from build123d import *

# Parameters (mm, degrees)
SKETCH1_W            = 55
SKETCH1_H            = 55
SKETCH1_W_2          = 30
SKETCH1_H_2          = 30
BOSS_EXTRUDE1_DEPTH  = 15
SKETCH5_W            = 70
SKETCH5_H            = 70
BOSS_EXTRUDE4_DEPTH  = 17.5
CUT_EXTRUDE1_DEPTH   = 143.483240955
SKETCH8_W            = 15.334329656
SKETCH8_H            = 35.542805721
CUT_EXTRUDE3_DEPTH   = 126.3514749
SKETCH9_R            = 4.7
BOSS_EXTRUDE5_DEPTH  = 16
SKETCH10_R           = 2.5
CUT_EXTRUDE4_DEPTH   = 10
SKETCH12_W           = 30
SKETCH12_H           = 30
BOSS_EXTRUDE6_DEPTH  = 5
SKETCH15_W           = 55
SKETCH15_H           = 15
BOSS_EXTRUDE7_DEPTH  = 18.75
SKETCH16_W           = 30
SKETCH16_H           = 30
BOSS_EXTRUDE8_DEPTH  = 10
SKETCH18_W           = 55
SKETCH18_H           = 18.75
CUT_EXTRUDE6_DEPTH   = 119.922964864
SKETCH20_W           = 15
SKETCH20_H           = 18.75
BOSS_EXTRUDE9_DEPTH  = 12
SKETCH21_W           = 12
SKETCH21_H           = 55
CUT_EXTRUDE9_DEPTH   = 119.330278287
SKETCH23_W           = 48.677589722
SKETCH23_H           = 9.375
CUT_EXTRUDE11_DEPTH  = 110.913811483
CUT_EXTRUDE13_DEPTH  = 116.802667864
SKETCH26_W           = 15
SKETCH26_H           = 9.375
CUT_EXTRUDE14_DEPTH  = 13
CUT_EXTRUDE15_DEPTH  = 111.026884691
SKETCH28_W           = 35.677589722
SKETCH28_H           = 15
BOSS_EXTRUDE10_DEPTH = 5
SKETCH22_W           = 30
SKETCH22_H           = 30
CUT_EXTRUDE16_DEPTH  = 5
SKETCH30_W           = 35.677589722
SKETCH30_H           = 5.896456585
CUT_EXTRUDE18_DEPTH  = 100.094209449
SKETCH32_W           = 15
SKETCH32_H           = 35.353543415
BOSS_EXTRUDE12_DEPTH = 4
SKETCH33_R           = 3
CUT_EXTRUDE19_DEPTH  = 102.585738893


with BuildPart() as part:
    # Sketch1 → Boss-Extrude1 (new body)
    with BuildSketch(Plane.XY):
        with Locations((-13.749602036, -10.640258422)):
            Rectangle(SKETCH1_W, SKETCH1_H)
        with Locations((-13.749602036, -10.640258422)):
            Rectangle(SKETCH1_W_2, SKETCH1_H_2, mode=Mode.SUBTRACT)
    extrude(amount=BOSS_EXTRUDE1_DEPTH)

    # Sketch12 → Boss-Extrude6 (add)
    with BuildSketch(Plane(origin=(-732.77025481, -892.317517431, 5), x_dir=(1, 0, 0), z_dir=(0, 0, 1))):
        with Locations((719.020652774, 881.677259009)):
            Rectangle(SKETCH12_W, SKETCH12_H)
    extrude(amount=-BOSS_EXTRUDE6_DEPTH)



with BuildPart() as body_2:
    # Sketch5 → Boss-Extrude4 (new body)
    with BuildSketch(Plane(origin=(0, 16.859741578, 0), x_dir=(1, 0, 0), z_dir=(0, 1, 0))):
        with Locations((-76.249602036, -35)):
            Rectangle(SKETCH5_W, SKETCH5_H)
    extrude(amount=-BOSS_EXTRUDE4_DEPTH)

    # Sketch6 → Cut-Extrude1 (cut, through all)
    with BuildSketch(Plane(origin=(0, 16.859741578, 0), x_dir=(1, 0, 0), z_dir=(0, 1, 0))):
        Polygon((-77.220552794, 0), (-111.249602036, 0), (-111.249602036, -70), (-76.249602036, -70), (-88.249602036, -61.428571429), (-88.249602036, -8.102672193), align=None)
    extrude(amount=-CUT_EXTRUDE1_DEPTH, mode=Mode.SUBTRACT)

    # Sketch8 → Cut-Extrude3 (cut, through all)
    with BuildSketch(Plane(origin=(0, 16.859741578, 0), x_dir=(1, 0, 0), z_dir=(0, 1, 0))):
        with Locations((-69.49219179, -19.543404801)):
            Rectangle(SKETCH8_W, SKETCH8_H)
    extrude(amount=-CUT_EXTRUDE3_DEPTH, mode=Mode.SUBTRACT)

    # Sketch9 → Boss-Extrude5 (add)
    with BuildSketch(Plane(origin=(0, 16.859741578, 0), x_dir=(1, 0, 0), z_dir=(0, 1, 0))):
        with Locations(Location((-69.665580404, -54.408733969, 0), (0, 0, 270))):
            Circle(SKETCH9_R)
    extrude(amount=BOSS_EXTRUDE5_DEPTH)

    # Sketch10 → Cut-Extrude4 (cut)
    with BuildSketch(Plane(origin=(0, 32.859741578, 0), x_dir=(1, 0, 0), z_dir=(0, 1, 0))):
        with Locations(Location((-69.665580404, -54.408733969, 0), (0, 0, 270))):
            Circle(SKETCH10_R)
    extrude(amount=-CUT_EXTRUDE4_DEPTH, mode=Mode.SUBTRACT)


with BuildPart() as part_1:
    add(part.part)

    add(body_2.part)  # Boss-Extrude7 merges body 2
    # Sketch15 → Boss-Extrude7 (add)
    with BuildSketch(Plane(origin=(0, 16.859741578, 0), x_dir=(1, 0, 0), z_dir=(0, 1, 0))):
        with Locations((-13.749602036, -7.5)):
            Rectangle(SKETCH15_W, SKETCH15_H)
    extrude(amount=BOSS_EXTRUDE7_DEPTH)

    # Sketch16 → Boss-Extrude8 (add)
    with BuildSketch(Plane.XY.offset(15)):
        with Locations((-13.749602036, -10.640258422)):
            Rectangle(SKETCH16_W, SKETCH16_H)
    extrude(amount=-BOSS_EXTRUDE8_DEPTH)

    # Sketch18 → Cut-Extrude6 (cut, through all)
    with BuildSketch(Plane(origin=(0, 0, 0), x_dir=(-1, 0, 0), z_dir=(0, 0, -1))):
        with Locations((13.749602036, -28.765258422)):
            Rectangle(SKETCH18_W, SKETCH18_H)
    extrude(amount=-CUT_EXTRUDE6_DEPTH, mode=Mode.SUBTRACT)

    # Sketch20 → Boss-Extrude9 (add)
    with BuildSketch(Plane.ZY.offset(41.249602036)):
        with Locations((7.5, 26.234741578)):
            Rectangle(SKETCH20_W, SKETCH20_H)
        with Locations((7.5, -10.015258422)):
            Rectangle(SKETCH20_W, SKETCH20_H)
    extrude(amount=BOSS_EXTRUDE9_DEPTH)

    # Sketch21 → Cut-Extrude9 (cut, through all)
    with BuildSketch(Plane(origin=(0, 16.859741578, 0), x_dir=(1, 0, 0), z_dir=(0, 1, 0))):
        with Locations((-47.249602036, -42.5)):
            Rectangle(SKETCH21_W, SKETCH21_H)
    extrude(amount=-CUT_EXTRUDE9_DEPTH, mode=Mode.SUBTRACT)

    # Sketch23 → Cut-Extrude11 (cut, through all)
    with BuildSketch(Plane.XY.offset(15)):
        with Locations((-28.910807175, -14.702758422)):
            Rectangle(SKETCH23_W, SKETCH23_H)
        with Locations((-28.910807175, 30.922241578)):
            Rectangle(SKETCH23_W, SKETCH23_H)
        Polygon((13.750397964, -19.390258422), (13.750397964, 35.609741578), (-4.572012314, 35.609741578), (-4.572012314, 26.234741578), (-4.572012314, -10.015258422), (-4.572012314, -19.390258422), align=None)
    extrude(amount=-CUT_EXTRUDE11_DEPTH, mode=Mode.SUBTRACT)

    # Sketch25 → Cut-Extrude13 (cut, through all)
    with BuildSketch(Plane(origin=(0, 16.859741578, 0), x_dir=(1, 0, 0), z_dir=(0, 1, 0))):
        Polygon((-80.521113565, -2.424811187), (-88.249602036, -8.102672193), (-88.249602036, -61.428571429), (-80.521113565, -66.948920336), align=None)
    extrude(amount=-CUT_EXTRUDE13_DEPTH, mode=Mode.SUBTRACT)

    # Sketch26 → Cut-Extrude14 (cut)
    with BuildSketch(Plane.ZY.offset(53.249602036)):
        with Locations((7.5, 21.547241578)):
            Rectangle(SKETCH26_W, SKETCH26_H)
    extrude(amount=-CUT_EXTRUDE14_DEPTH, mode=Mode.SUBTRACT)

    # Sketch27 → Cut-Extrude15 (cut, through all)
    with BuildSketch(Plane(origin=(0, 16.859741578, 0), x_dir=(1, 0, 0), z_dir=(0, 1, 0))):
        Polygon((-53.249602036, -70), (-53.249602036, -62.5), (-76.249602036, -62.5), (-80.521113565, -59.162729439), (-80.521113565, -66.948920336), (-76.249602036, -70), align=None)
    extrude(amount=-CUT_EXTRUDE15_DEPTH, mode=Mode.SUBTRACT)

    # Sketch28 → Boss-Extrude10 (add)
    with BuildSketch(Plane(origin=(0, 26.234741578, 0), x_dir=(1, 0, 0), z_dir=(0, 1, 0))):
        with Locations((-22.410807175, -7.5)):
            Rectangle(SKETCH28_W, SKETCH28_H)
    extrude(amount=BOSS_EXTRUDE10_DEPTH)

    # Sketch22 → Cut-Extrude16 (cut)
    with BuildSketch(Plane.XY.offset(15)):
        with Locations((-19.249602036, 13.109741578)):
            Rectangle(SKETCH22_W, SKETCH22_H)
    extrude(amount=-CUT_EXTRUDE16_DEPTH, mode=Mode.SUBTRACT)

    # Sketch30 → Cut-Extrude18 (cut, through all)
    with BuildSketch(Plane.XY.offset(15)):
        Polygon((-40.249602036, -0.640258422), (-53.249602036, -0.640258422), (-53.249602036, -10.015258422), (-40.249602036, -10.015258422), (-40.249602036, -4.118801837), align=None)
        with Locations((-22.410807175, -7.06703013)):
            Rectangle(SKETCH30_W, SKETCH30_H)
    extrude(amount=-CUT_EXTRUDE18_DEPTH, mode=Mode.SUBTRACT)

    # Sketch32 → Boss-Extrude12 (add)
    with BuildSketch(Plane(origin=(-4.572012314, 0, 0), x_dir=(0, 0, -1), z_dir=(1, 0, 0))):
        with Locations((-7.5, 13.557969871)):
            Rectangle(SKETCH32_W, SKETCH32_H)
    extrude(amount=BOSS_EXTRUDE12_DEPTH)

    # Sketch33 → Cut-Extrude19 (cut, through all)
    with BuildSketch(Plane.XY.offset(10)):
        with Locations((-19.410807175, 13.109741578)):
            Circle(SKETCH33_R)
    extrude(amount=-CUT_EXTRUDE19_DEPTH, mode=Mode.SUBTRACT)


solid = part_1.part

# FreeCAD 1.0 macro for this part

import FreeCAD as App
import Part
import Sketcher
Q = App.Units.Quantity


def add_polygon(sketch, points):
    """Adds a closed chain of lines whose ends are joined by coincident constraints."""
    first, n = sketch.GeometryCount, len(points)
    for a, b in zip(points, points[1:] + points[:1]):
        sketch.addGeometry(Part.LineSegment(App.Vector(*a, 0), App.Vector(*b, 0)), False)
    for i in range(n):
        sketch.addConstraint(Sketcher.Constraint("Coincident", first + i, 2, first + (i + 1) % n, 1))

doc = App.newDocument("Part")
body = doc.addObject("PartDesign::Body", "Body")

# Sketch on XY plane
sketch1 = body.newObject("Sketcher::SketchObject", "Sketch")
sketch1.AttachmentSupport = (doc.getObject("XY_Plane"), [""])
sketch1.MapMode = "FlatFace"
add_polygon(sketch1, [(-41, 17), (-41, -38), (14, -38), (14, 17)])  # lines 0-3
add_polygon(sketch1, [(1, -26), (-29, -26), (-29, 4), (1, 4)])  # lines 4-7
sketch1.addConstraint([
    Sketcher.Constraint("Vertical", 0),
    Sketcher.Constraint("Horizontal", 1),
    Sketcher.Constraint("Vertical", 2),
    Sketcher.Constraint("Horizontal", 3),
    Sketcher.Constraint("Horizontal", 4),
    Sketcher.Constraint("Vertical", 5),
    Sketcher.Constraint("Horizontal", 6),
    Sketcher.Constraint("Vertical", 7),
    Sketcher.Constraint("Equal", 3, 0),
    Sketcher.Constraint("Equal", 6, 5),
    Sketcher.Constraint("DistanceX", 1, 1, 1, 2, 55.0),
    Sketcher.Constraint("DistanceX", 4, 2, 4, 1, 30.0),
    Sketcher.Constraint("DistanceX", 0, 2, 4, 2, 12.5),
    Sketcher.Constraint("DistanceY", 0, 2, 4, 2, 12.5),
    Sketcher.Constraint("DistanceY", 0, 2, -1, 1, 38.140258),
    Sketcher.Constraint("DistanceX", 0, 2, -1, 1, 41.249602),
])
pad1 = body.newObject("PartDesign::Pad", "Pad")
pad1.Profile = sketch1
pad1.Length = 15

# Sketch on XY plane
sketch2 = body.newObject("Sketcher::SketchObject", "Sketch001")
sketch2.AttachmentSupport = (doc.getObject("XY_Plane"), [""])
sketch2.MapMode = "FlatFace"
sketch2.AttachmentOffset = App.Placement(App.Vector(0, 0, 5), App.Rotation())
add_polygon(sketch2, [(-29, 4), (-29, -26), (1, -26), (1, 4)])  # lines 0-3
sketch2.addConstraint([
    Sketcher.Constraint("Vertical", 0),
    Sketcher.Constraint("Horizontal", 1),
    Sketcher.Constraint("Vertical", 2),
    Sketcher.Constraint("Horizontal", 3),
    Sketcher.Constraint("Equal", 3, 0),
    Sketcher.Constraint("DistanceX", 1, 1, 1, 2, 30.0),
    Sketcher.Constraint("DistanceY", 0, 2, -1, 1, 25.640258),
    Sketcher.Constraint("DistanceX", 0, 2, -1, 1, 28.749602),
])
pad2 = body.newObject("PartDesign::Pad", "Pad001")
pad2.Profile = sketch2
pad2.Length = 5
pad2.Reversed = True
body2 = doc.addObject("PartDesign::Body", "Body001")

# Sketch on XZ plane
sketch3 = body2.newObject("Sketcher::SketchObject", "Sketch002")
sketch3.AttachmentSupport = (doc.getObject("XZ_Plane001"), [""])
sketch3.MapMode = "FlatFace"
sketch3.AttachmentOffset = App.Placement(App.Vector(0, 0, -16.859742), App.Rotation())
add_polygon(sketch3, [(-111, 0), (-111, 70), (-41, 70), (-41, 0)])  # lines 0-3
sketch3.addConstraint([
    Sketcher.Constraint("Vertical", 0),
    Sketcher.Constraint("Horizontal", 1),
    Sketcher.Constraint("Vertical", 2),
    Sketcher.Constraint("Horizontal", 3),
    Sketcher.Constraint("PointOnObject", 2, 2, -1),
    Sketcher.Constraint("Equal", 3, 0),
    Sketcher.Constraint("DistanceX", 1, 1, 1, 2, 70.0),
    Sketcher.Constraint("DistanceX", 0, 2, -1, 1, 111.249602),
])
pad3 = body2.newObject("PartDesign::Pad", "Pad002")
pad3.Profile = sketch3
pad3.Length = 17.5

# Sketch on XZ plane
sketch4 = body2.newObject("Sketcher::SketchObject", "Sketch003")
sketch4.AttachmentSupport = (doc.getObject("XZ_Plane001"), [""])
sketch4.MapMode = "FlatFace"
sketch4.AttachmentOffset = App.Placement(App.Vector(0, 0, -16.859742), App.Rotation())
add_polygon(sketch4, [(-77, 0), (-111, 0), (-111, 70), (-76, 70), (-88, 61), (-88, 8)])  # lines 0-5
sketch4.addConstraint([
    Sketcher.Constraint("Horizontal", 0),
    Sketcher.Constraint("Vertical", 1),
    Sketcher.Constraint("Horizontal", 2),
    Sketcher.Constraint("Vertical", 4),
    Sketcher.Constraint("PointOnObject", 0, 2, -1),
    Sketcher.Constraint("DistanceX", 2, 1, 2, 2, 35.0),
    Sketcher.Constraint("DistanceY", 1, 1, 1, 2, 70.0),
    Sketcher.Constraint("DistanceX", 3, 2, 2, 2, 12.0),
    Sketcher.Constraint("DistanceY", 4, 2, 4, 1, 53.325899),
    Sketcher.Constraint("DistanceX", 0, 2, 0, 1, 34.029049),
    Sketcher.Constraint("Distance", 5, 13.685511),
    Sketcher.Constraint("DistanceX", 0, 2, -1, 1, 111.249602),
])
pocket1 = body2.newObject("PartDesign::Pocket", "Pocket")
pocket1.Profile = sketch4
pocket1.Type = "ThroughAll"
pocket1.Reversed = True

# Sketch on XZ plane
sketch5 = body2.newObject("Sketcher::SketchObject", "Sketch004")
sketch5.AttachmentSupport = (doc.getObject("XZ_Plane001"), [""])
sketch5.MapMode = "FlatFace"
sketch5.AttachmentOffset = App.Placement(App.Vector(0, 0, -16.859742), App.Rotation())
add_polygon(sketch5, [(-77, 2), (-77, 37), (-62, 37), (-62, 2)])  # lines 0-3
sketch5.addConstraint([
    Sketcher.Constraint("Vertical", 0),
    Sketcher.Constraint("Horizontal", 1),
    Sketcher.Constraint("Vertical", 2),
    Sketcher.Constraint("Horizontal", 3),
    Sketcher.Constraint("DistanceY", -1, 1, 2, 2, 1.772002),
    Sketcher.Constraint("DistanceX", 1, 1, 1, 2, 15.33433),
    Sketcher.Constraint("DistanceY", 0, 1, 0, 2, 35.542806),
    Sketcher.Constraint("DistanceX", 0, 2, -1, 1, 77.159357),
])
pocket2 = body2.newObject("PartDesign::Pocket", "Pocket001")
pocket2.Profile = sketch5
pocket2.Type = "ThroughAll"
pocket2.Reversed = True

# Sketch on XZ plane
sketch6 = body2.newObject("Sketcher::SketchObject", "Sketch005")
sketch6.AttachmentSupport = (doc.getObject("XZ_Plane001"), [""])
sketch6.MapMode = "FlatFace"
sketch6.AttachmentOffset = App.Placement(App.Vector(0, 0, -16.859742), App.Rotation())
sketch6.addGeometry(Part.Circle(App.Vector(-69.7, 54.4, 0), App.Vector(0, 0, 1), 4.7), False)
sketch6.addConstraint([
    Sketcher.Constraint("Diameter", 0, 9.4),
    Sketcher.Constraint("DistanceX", 0, 3, -1, 1, 69.66558),
    Sketcher.Constraint("DistanceY", -1, 1, 0, 3, 54.408734),
])
pad4 = body2.newObject("PartDesign::Pad", "Pad003")
pad4.Profile = sketch6
pad4.Length = 16
pad4.Reversed = True

# Sketch on XZ plane
sketch7 = body2.newObject("Sketcher::SketchObject", "Sketch006")
sketch7.AttachmentSupport = (doc.getObject("XZ_Plane001"), [""])
sketch7.MapMode = "FlatFace"
sketch7.AttachmentOffset = App.Placement(App.Vector(0, 0, -32.859742), App.Rotation())
sketch7.addGeometry(Part.Circle(App.Vector(-69.7, 54.4, 0), App.Vector(0, 0, 1), 2.5), False)
sketch7.addConstraint([
    Sketcher.Constraint("Diameter", 0, 5.0),
    Sketcher.Constraint("DistanceX", 0, 3, -1, 1, 69.66558),
    Sketcher.Constraint("DistanceY", -1, 1, 0, 3, 54.408734),
])
pocket3 = body2.newObject("PartDesign::Pocket", "Pocket002")
pocket3.Profile = sketch7
pocket3.Length = 10
pocket3.Reversed = True
doc.recompute()

boolean = body.newObject("PartDesign::Boolean", "Boolean")
boolean.Type = "Fuse"
boolean.addObjects([body2])

# Sketch on XZ plane
sketch8 = body.newObject("Sketcher::SketchObject", "Sketch007")
sketch8.AttachmentSupport = (doc.getObject("XZ_Plane"), [""])
sketch8.MapMode = "FlatFace"
sketch8.AttachmentOffset = App.Placement(App.Vector(0, 0, -16.859742), App.Rotation())
add_polygon(sketch8, [(-41, 0), (-41, 15), (14, 15), (14, 0)])  # lines 0-3
sketch8.addConstraint([
    Sketcher.Constraint("Vertical", 0),
    Sketcher.Constraint("Horizontal", 1),
    Sketcher.Constraint("Vertical", 2),
    Sketcher.Constraint("Horizontal", 3),
    Sketcher.Constraint("PointOnObject", 2, 2, -1),
    Sketcher.Constraint("DistanceX", 1, 1, 1, 2, 55.0),
    Sketcher.Constraint("DistanceY", 0, 1, 0, 2, 15.0),
    Sketcher.Constraint("DistanceX", 0, 2, -1, 1, 41.249602),
])
pad5 = body.newObject("PartDesign::Pad", "Pad004")
pad5.Profile = sketch8
pad5.Length = 18.75
pad5.Reversed = True

# Sketch on XY plane
sketch9 = body.newObject("Sketcher::SketchObject", "Sketch008")
sketch9.AttachmentSupport = (doc.getObject("XY_Plane"), [""])
sketch9.MapMode = "FlatFace"
sketch9.AttachmentOffset = App.Placement(App.Vector(0, 0, 15), App.Rotation())
add_polygon(sketch9, [(-29, 4), (-29, -26), (1, -26), (1, 4)])  # lines 0-3
sketch9.addConstraint([
    Sketcher.Constraint("Vertical", 0),
    Sketcher.Constraint("Horizontal", 1),
    Sketcher.Constraint("Vertical", 2),
    Sketcher.Constraint("Horizontal", 3),
    Sketcher.Constraint("Equal", 3, 0),
    Sketcher.Constraint("DistanceX", 1, 1, 1, 2, 30.0),
    Sketcher.Constraint("DistanceY", 0, 2, -1, 1, 25.640258),
    Sketcher.Constraint("DistanceX", 0, 2, -1, 1, 28.749602),
])
pad6 = body.newObject("PartDesign::Pad", "Pad005")
pad6.Profile = sketch9
pad6.Length = 10
pad6.Reversed = True

# Sketch on XY plane
sketch10 = body.newObject("Sketcher::SketchObject", "Sketch009")
sketch10.AttachmentSupport = (doc.getObject("XY_Plane"), [""])
sketch10.MapMode = "FlatFace"
add_polygon(sketch10, [(14, -19), (14, -38), (-41, -38), (-41, -19)])  # lines 0-3
sketch10.addConstraint([
    Sketcher.Constraint("Vertical", 0),
    Sketcher.Constraint("Horizontal", 1),
    Sketcher.Constraint("Vertical", 2),
    Sketcher.Constraint("Horizontal", 3),
    Sketcher.Constraint("DistanceX", 1, 2, 1, 1, 55.0),
    Sketcher.Constraint("DistanceY", 0, 2, 0, 1, 18.75),
    Sketcher.Constraint("DistanceY", 0, 2, -1, 1, 38.140258),
    Sketcher.Constraint("DistanceX", -1, 1, 0, 2, 13.750398),
])
pocket4 = body.newObject("PartDesign::Pocket", "Pocket003")
pocket4.Profile = sketch10
pocket4.Type = "ThroughAll"
pocket4.Reversed = True

# Sketch on YZ plane
sketch11 = body.newObject("Sketcher::SketchObject", "Sketch010")
sketch11.AttachmentSupport = (doc.getObject("YZ_Plane"), [""])
sketch11.MapMode = "FlatFace"
sketch11.AttachmentOffset = App.Placement(App.Vector(0, 0, -41.249602), App.Rotation())
add_polygon(sketch11, [(36, 0), (17, 0), (17, 15), (36, 15)])  # lines 0-3
add_polygon(sketch11, [(-1, 0), (-19, 0), (-19, 15), (-1, 15)])  # lines 4-7
sketch11.addConstraint([
    Sketcher.Constraint("Horizontal", 0),
    Sketcher.Constraint("Vertical", 1),
    Sketcher.Constraint("Horizontal", 2),
    Sketcher.Constraint("Vertical", 3),
    Sketcher.Constraint("Horizontal", 4),
    Sketcher.Constraint("Vertical", 5),
    Sketcher.Constraint("Horizontal", 6),
    Sketcher.Constraint("Vertical", 7),
    Sketcher.Constraint("PointOnObject", 0, 2, -1),
    Sketcher.Constraint("PointOnObject", 4, 2, -1),
    Sketcher.Constraint("Horizontal", 2, 2, 5, 2),
    Sketcher.Constraint("Equal", 2, 4),
    Sketcher.Constraint("DistanceY", 1, 1, 1, 2, 15.0),
    Sketcher.Constraint("DistanceX", 4, 2, 3, 2, 55.0),
    Sketcher.Constraint("DistanceX", 0, 2, 0, 1, 18.75),
    Sketcher.Constraint("DistanceX", -1, 1, 0, 2, 16.859742),
])
pad7 = body.newObject("PartDesign::Pad", "Pad006")
pad7.Profile = sketch11
pad7.Length = 12
pad7.Reversed = True

# Sketch on XZ plane
sketch12 = body.newObject("Sketcher::SketchObject", "Sketch011")
sketch12.AttachmentSupport = (doc.getObject("XZ_Plane"), [""])
sketch12.MapMode = "FlatFace"
sketch12.AttachmentOffset = App.Placement(App.Vector(0, 0, -16.859742), App.Rotation())
add_polygon(sketch12, [(-53, 15), (-53, 70), (-41, 70), (-41, 15)])  # lines 0-3
sketch12.addConstraint([
    Sketcher.Constraint("Vertical", 0),
    Sketcher.Constraint("Horizontal", 1),
    Sketcher.Constraint("Vertical", 2),
    Sketcher.Constraint("Horizontal", 3),
    Sketcher.Constraint("DistanceX", 1, 1, 1, 2, 12.0),
    Sketcher.Constraint("DistanceY", 0, 1, 0, 2, 55.0),
    Sketcher.Constraint("DistanceY", -1, 1, 0, 2, 70.0),
    Sketcher.Constraint("DistanceX", 0, 2, -1, 1, 53.249602),
])
pocket5 = body.newObject("PartDesign::Pocket", "Pocket004")
pocket5.Profile = sketch12
pocket5.Type = "ThroughAll"
pocket5.Reversed = True

# Sketch on XY plane
sketch13 = body.newObject("Sketcher::SketchObject", "Sketch012")
sketch13.AttachmentSupport = (doc.getObject("XY_Plane"), [""])
sketch13.MapMode = "FlatFace"
sketch13.AttachmentOffset = App.Placement(App.Vector(0, 0, 15), App.Rotation())
add_polygon(sketch13, [(-53, -10), (-53, -19), (14, -19), (14, 36), (-53, 36), (-53, 26), (-5, 26), (-5, -10)])  # lines 0-7
sketch13.addConstraint([
    Sketcher.Constraint("Vertical", 0),
    Sketcher.Constraint("Horizontal", 1),
    Sketcher.Constraint("Vertical", 2),
    Sketcher.Constraint("Horizontal", 3),
    Sketcher.Constraint("Vertical", 4),
    Sketcher.Constraint("Horizontal", 5),
    Sketcher.Constraint("Vertical", 6),
    Sketcher.Constraint("Horizontal", 7),
    Sketcher.Constraint("Vertical", 0, 2, 3, 2),
    Sketcher.Constraint("Equal", 0, 4),
    Sketcher.Constraint("DistanceX", 1, 1, 1, 2, 67.0),
    Sketcher.Constraint("DistanceY", 2, 1, 2, 2, 55.0),
    Sketcher.Constraint("DistanceY", 6, 2, 6, 1, 36.25),
    Sketcher.Constraint("DistanceX", 5, 1, 5, 2, 48.67759),
    Sketcher.Constraint("DistanceY", 0, 2, -1, 1, 19.390258),
    Sketcher.Constraint("DistanceX", 0, 2, -1, 1, 53.249602),
])
pocket6 = body.newObject("PartDesign::Pocket", "Pocket005")
pocket6.Profile = sketch13
pocket6.Type = "ThroughAll"

# Sketch on XZ plane
sketch14 = body.newObject("Sketcher::SketchObject", "Sketch013")
sketch14.AttachmentSupport = (doc.getObject("XZ_Plane"), [""])
sketch14.MapMode = "FlatFace"
sketch14.AttachmentOffset = App.Placement(App.Vector(0, 0, -16.859742), App.Rotation())
add_polygon(sketch14, [(-81, 2), (-88, 8), (-88, 61), (-81, 67)])  # lines 0-3
sketch14.addConstraint([
    Sketcher.Constraint("Vertical", 1),
    Sketcher.Constraint("Vertical", 3),
    Sketcher.Constraint("DistanceY", 1, 1, 1, 2, 53.325899),
    Sketcher.Constraint("DistanceY", 3, 2, 3, 1, 64.524109),
    Sketcher.Constraint("DistanceY", -1, 1, 1, 2, 61.428571),
    Sketcher.Constraint("DistanceY", -1, 1, 2, 2, 66.94892),
    Sketcher.Constraint("DistanceX", 1, 2, 2, 2, 7.728488),
    Sketcher.Constraint("DistanceX", 0, 2, -1, 1, 88.249602),
])
pocket7 = body.newObject("PartDesign::Pocket", "Pocket006")
pocket7.Profile = sketch14
pocket7.Type = "ThroughAll"
pocket7.Reversed = True

# Sketch on YZ plane
sketch15 = body.newObject("Sketcher::SketchObject", "Sketch014")
sketch15.AttachmentSupport = (doc.getObject("YZ_Plane"), [""])
sketch15.MapMode = "FlatFace"
sketch15.AttachmentOffset = App.Placement(App.Vector(0, 0, -53.249602), App.Rotation())
add_polygon(sketch15, [(26, 0), (17, 0), (17, 15), (26, 15)])  # lines 0-3
sketch15.addConstraint([
    Sketcher.Constraint("Horizontal", 0),
    Sketcher.Constraint("Vertical", 1),
    Sketcher.Constraint("Horizontal", 2),
    Sketcher.Constraint("Vertical", 3),
    Sketcher.Constraint("PointOnObject", 0, 2, -1),
    Sketcher.Constraint("DistanceY", 1, 1, 1, 2, 15.0),
    Sketcher.Constraint("DistanceX", 0, 2, 0, 1, 9.375),
    Sketcher.Constraint("DistanceX", -1, 1, 0, 2, 16.859742),
])
pocket8 = body.newObject("PartDesign::Pocket", "Pocket007")
pocket8.Profile = sketch15
pocket8.Length = 13
pocket8.Reversed = True

# Sketch on XZ plane
sketch16 = body.newObject("Sketcher::SketchObject", "Sketch015")
sketch16.AttachmentSupport = (doc.getObject("XZ_Plane"), [""])
sketch16.MapMode = "FlatFace"
sketch16.AttachmentOffset = App.Placement(App.Vector(0, 0, -16.859742), App.Rotation())
add_polygon(sketch16, [(-53, 70), (-53, 62), (-76, 62), (-81, 59), (-81, 67), (-76, 70)])  # lines 0-5
sketch16.addConstraint([
    Sketcher.Constraint("Vertical", 0),
    Sketcher.Constraint("Horizontal", 1),
    Sketcher.Constraint("Vertical", 3),
    Sketcher.Constraint("Horizontal", 5),
    Sketcher.Constraint("Vertical", 1, 2, 4, 2),
    Sketcher.Constraint("DistanceX", 1, 2, 1, 1, 23.0),
    Sketcher.Constraint("Angle", 2, Q("-142 deg")),
    Sketcher.Constraint("DistanceY", 0, 2, 0, 1, 7.5),
    Sketcher.Constraint("DistanceY", -1, 1, 4, 2, 70.0),
    Sketcher.Constraint("DistanceY", 3, 1, 3, 2, 7.786191),
    Sketcher.Constraint("DistanceY", -1, 1, 2, 2, 59.162729),
    Sketcher.Constraint("DistanceX", 0, 2, -1, 1, 53.249602),
])
pocket9 = body.newObject("PartDesign::Pocket", "Pocket008")
pocket9.Profile = sketch16
pocket9.Type = "ThroughAll"
pocket9.Reversed = True

# Sketch on XZ plane
sketch17 = body.newObject("Sketcher::SketchObject", "Sketch016")
sketch17.AttachmentSupport = (doc.getObject("XZ_Plane"), [""])
sketch17.MapMode = "FlatFace"
sketch17.AttachmentOffset = App.Placement(App.Vector(0, 0, -26.234742), App.Rotation())
add_polygon(sketch17, [(-40, 0), (-40, 15), (-5, 15), (-5, 0)])  # lines 0-3
sketch17.addConstraint([
    Sketcher.Constraint("Vertical", 0),
    Sketcher.Constraint("Horizontal", 1),
    Sketcher.Constraint("Vertical", 2),
    Sketcher.Constraint("Horizontal", 3),
    Sketcher.Constraint("PointOnObject", 2, 2, -1),
    Sketcher.Constraint("DistanceY", 0, 1, 0, 2, 15.0),
    Sketcher.Constraint("DistanceX", 1, 1, 1, 2, 35.67759),
    Sketcher.Constraint("DistanceX", 0, 2, -1, 1, 40.249602),
])
pad8 = body.newObject("PartDesign::Pad", "Pad007")
pad8.Profile = sketch17
pad8.Length = 5
pad8.Reversed = True

# Sketch on XY plane
sketch18 = body.newObject("Sketcher::SketchObject", "Sketch017")
sketch18.AttachmentSupport = (doc.getObject("XY_Plane"), [""])
sketch18.MapMode = "FlatFace"
sketch18.AttachmentOffset = App.Placement(App.Vector(0, 0, 15), App.Rotation())
add_polygon(sketch18, [(-34, 28), (-34, -2), (-4, -2), (-4, 28)])  # lines 0-3
sketch18.addConstraint([
    Sketcher.Constraint("Vertical", 0),
    Sketcher.Constraint("Horizontal", 1),
    Sketcher.Constraint("Vertical", 2),
    Sketcher.Constraint("Horizontal", 3),
    Sketcher.Constraint("Equal", 3, 0),
    Sketcher.Constraint("DistanceX", 1, 1, 1, 2, 30.0),
    Sketcher.Constraint("DistanceY", 0, 2, -1, 1, 1.890258),
    Sketcher.Constraint("DistanceX", 0, 2, -1, 1, 34.249602),
])
pocket10 = body.newObject("PartDesign::Pocket", "Pocket009")
pocket10.Profile = sketch18
pocket10.Length = 5

# Sketch on XY plane
sketch19 = body.newObject("Sketcher::SketchObject", "Sketch018")
sketch19.AttachmentSupport = (doc.getObject("XY_Plane"), [""])
sketch19.MapMode = "FlatFace"
sketch19.AttachmentOffset = App.Placement(App.Vector(0, 0, 15), App.Rotation())
add_polygon(sketch19, [(-40.2, -0.6), (-53.2, -0.6), (-53.2, -10), (-40.2, -10), (-4.6, -10), (-4.6, -4.1), (-40.2, -4.1)])  # lines 0-6
sketch19.addConstraint([
    Sketcher.Constraint("Horizontal", 0),
    Sketcher.Constraint("Vertical", 1),
    Sketcher.Constraint("Horizontal", 2),
    Sketcher.Constraint("Horizontal", 3),
    Sketcher.Constraint("Vertical", 4),
    Sketcher.Constraint("Horizontal", 5),
    Sketcher.Constraint("Vertical", 6),
    Sketcher.Constraint("Vertical", 2, 2, 5, 2),
    Sketcher.Constraint("DistanceX", 0, 2, 0, 1, 13.0),
    Sketcher.Constraint("DistanceY", 1, 2, 1, 1, 9.375),
    Sketcher.Constraint("DistanceX", 3, 1, 3, 2, 35.67759),
    Sketcher.Constraint("DistanceY", 4, 2, -1, 1, 4.118802),
    Sketcher.Constraint("DistanceY", 4, 1, 4, 2, 5.896457),
    Sketcher.Constraint("DistanceX", 0, 2, -1, 1, 53.249602),
])
pocket11 = body.newObject("PartDesign::Pocket", "Pocket010")
pocket11.Profile = sketch19
pocket11.Type = "ThroughAll"

# Sketch on YZ plane
sketch20 = body.newObject("Sketcher::SketchObject", "Sketch019")
sketch20.AttachmentSupport = (doc.getObject("YZ_Plane"), [""])
sketch20.MapMode = "FlatFace"
sketch20.AttachmentOffset = App.Placement(App.Vector(0, 0, -4.572012), App.Rotation())
add_polygon(sketch20, [(31, 15), (-4, 15), (-4, 0), (31, 0)])  # lines 0-3
sketch20.addConstraint([
    Sketcher.Constraint("Horizontal", 0),
    Sketcher.Constraint("Vertical", 1),
    Sketcher.Constraint("Horizontal", 2),
    Sketcher.Constraint("Vertical", 3),
    Sketcher.Constraint("PointOnObject", 1, 2, -1),
    Sketcher.Constraint("DistanceY", 1, 2, 1, 1, 15.0),
    Sketcher.Constraint("DistanceX", 0, 2, -1, 1, 4.118802),
    Sketcher.Constraint("DistanceX", 0, 2, 0, 1, 35.353543),
])
pad9 = body.newObject("PartDesign::Pad", "Pad008")
pad9.Profile = sketch20
pad9.Length = 4

# Sketch on XY plane
sketch21 = body.newObject("Sketcher::SketchObject", "Sketch020")
sketch21.AttachmentSupport = (doc.getObject("XY_Plane"), [""])
sketch21.MapMode = "FlatFace"
sketch21.AttachmentOffset = App.Placement(App.Vector(0, 0, 10), App.Rotation())
sketch21.addGeometry(Part.Circle(App.Vector(-19.4, 13.1, 0), App.Vector(0, 0, 1), 3), False)
sketch21.addConstraint([
    Sketcher.Constraint("Diameter", 0, 6.0),
    Sketcher.Constraint("DistanceY", -1, 1, 0, 3, 13.109742),
    Sketcher.Constraint("DistanceX", 0, 3, -1, 1, 19.410807),
])
pocket12 = body.newObject("PartDesign::Pocket", "Pocket011")
pocket12.Profile = sketch21
pocket12.Type = "ThroughAll"

doc.recompute()
